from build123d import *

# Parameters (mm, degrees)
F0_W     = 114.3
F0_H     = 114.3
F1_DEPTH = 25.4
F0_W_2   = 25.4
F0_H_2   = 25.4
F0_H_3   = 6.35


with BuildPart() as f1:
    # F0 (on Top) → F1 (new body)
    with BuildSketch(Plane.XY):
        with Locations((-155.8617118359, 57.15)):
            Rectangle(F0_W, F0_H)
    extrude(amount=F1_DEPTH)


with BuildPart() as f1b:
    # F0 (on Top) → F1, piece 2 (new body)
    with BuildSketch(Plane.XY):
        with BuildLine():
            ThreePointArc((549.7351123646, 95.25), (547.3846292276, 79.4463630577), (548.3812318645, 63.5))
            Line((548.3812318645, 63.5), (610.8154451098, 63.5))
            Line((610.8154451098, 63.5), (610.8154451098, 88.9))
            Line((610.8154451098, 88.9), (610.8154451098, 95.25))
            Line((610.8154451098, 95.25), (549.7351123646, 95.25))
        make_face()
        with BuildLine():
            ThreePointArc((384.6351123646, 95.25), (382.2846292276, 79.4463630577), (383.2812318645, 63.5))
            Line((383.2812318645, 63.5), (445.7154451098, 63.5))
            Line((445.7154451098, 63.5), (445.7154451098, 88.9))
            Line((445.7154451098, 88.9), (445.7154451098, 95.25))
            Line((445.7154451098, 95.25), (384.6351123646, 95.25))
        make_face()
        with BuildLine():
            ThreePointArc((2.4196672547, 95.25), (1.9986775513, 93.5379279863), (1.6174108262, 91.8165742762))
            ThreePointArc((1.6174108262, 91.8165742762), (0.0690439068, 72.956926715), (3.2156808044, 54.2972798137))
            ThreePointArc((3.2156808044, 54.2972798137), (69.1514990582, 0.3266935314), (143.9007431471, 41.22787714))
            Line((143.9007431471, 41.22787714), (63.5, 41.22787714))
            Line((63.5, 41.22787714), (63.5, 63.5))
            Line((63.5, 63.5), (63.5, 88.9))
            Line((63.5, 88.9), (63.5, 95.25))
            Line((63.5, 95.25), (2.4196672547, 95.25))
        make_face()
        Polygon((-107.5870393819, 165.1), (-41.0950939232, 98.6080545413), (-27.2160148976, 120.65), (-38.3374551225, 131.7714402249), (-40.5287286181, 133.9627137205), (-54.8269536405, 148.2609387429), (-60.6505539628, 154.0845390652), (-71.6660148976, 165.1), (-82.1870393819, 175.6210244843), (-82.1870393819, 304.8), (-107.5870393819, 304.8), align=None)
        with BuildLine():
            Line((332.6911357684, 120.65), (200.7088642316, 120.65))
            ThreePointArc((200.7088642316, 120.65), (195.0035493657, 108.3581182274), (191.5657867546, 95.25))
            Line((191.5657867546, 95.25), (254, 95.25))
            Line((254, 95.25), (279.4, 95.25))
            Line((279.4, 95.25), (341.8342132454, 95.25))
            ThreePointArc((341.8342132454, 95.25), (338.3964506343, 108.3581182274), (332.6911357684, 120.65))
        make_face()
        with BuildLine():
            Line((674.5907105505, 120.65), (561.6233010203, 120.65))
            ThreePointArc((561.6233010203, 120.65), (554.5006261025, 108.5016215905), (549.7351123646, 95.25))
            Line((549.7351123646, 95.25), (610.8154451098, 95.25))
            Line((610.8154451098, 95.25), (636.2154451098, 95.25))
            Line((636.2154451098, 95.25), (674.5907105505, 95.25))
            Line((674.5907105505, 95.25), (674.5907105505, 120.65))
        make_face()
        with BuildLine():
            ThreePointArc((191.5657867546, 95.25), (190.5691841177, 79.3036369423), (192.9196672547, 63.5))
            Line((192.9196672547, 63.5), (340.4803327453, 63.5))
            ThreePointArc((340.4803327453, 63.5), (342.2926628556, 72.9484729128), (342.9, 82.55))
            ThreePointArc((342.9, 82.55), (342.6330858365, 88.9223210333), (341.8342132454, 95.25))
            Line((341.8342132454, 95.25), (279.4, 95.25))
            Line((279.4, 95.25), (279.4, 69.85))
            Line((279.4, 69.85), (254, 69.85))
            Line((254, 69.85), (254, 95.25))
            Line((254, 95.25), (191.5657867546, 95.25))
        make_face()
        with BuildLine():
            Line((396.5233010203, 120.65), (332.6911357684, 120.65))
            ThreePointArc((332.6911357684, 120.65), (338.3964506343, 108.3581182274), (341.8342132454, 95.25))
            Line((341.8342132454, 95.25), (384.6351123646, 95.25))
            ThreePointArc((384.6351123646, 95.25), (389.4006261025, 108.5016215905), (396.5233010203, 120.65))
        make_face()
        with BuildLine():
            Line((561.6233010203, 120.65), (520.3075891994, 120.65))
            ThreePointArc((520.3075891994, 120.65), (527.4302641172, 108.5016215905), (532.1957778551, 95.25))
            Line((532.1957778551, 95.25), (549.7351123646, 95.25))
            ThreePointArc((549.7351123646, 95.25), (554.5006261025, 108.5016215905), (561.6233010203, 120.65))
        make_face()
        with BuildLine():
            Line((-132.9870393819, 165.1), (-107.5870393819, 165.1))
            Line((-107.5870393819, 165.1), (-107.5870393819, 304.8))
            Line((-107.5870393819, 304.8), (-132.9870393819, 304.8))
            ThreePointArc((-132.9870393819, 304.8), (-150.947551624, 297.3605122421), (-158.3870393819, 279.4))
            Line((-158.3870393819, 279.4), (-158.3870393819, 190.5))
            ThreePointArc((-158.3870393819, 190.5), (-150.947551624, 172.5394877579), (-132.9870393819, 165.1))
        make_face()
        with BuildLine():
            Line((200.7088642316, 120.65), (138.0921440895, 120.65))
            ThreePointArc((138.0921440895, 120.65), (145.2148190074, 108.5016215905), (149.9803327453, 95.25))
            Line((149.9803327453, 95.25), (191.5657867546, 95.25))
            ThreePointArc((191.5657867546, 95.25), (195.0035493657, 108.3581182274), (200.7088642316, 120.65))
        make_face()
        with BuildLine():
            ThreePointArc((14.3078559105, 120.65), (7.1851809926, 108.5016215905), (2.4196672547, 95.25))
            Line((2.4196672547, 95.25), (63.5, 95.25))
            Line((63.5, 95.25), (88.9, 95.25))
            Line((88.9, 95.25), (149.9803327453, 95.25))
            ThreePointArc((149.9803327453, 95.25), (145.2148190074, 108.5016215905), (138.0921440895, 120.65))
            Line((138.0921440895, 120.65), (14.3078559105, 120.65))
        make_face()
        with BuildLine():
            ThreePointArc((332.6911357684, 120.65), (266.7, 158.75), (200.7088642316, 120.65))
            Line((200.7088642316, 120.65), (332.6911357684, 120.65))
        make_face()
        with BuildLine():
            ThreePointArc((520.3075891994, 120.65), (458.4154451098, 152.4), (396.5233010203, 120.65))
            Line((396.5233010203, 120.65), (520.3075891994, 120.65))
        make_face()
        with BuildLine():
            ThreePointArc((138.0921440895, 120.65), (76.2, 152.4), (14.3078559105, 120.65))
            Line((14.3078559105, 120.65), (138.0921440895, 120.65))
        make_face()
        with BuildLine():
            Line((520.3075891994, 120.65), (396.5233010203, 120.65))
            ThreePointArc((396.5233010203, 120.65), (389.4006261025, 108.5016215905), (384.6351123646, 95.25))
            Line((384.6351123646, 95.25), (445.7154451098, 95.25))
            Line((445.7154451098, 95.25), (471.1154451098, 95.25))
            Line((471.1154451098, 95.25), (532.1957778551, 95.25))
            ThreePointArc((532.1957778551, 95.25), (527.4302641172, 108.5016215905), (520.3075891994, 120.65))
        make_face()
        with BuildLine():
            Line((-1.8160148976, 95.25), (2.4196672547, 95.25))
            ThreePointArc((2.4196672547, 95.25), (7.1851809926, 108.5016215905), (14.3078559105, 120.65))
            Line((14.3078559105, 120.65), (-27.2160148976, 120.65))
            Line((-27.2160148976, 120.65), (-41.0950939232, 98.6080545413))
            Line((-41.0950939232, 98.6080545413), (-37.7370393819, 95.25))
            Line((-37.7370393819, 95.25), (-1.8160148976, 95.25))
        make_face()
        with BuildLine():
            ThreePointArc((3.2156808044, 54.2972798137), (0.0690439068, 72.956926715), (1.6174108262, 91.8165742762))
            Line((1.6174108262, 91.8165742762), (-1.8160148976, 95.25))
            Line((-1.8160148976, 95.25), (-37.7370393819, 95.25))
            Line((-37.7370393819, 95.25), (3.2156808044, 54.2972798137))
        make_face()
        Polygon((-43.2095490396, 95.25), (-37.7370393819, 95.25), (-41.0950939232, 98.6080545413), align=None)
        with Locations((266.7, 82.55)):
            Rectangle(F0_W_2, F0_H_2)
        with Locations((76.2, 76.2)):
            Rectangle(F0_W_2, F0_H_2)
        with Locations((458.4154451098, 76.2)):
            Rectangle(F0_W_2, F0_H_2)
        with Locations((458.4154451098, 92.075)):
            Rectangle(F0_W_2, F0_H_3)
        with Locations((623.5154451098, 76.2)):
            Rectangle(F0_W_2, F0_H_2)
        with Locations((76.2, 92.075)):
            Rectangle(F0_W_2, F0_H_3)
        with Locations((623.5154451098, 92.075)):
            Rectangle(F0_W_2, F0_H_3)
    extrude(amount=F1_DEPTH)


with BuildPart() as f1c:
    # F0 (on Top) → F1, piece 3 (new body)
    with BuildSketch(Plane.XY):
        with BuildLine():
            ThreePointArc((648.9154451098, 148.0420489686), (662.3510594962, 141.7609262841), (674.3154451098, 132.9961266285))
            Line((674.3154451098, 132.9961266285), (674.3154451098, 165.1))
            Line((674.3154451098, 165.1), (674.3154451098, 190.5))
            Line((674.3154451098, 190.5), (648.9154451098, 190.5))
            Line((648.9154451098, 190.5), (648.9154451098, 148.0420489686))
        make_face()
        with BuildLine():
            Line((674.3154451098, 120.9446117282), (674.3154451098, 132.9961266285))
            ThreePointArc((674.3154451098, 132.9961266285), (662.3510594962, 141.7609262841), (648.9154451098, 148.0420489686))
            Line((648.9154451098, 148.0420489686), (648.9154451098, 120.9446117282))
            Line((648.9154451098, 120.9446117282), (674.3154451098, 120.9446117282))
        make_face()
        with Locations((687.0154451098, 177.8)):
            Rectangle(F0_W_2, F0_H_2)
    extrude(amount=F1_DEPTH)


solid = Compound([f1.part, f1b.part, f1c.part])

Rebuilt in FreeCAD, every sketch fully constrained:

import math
import FreeCAD as App
import Part
import Sketcher
Q = App.Units.Quantity

doc = App.newDocument("Part")
body = doc.addObject("PartDesign::Body", "Body")

# Sketch on XY plane
sketch1 = body.newObject("Sketcher::SketchObject", "Sketch")
sketch1.AttachmentSupport = (doc.getObject("XY_Plane"), [""])
sketch1.MapMode = "FlatFace"
sketch1.addGeometry(Part.LineSegment(App.Vector(-213.011712, 114.3, 0), App.Vector(-213.011712, 0, 0)), False)
sketch1.addGeometry(Part.LineSegment(App.Vector(-213.011712, 0, 0), App.Vector(-98.711712, 0, 0)), False)
sketch1.addGeometry(Part.LineSegment(App.Vector(-98.711712, 0, 0), App.Vector(-98.711712, 114.3, 0)), False)
sketch1.addGeometry(Part.LineSegment(App.Vector(-98.711712, 114.3, 0), App.Vector(-213.011712, 114.3, 0)), False)
sketch1.addConstraint(Sketcher.Constraint("Coincident", 0, 2, 1, 1))
sketch1.addConstraint(Sketcher.Constraint("Coincident", 1, 2, 2, 1))
sketch1.addConstraint(Sketcher.Constraint("Coincident", 2, 2, 3, 1))
sketch1.addConstraint(Sketcher.Constraint("Coincident", 3, 2, 0, 1))
sketch1.addConstraint(Sketcher.Constraint("Vertical", 0))
sketch1.addConstraint(Sketcher.Constraint("Horizontal", 1))
sketch1.addConstraint(Sketcher.Constraint("Vertical", 2))
sketch1.addConstraint(Sketcher.Constraint("Horizontal", 3))
sketch1.addConstraint(Sketcher.Constraint("PointOnObject", 0, 2, -1))
sketch1.addConstraint(Sketcher.Constraint("Equal", 3, 0))
sketch1.addConstraint(Sketcher.Constraint("DistanceX", 1, 1, 1, 2, Q("4.5 in")))
sketch1.addConstraint(Sketcher.Constraint("DistanceX", 0, 2, -1, 1, 213.011712))
pad1 = body.newObject("PartDesign::Pad", "Pad")
pad1.Profile = sketch1
pad1.Length = Q("1 in")
body2 = doc.addObject("PartDesign::Body", "Body001")

# Sketch on XY plane
sketch2 = body2.newObject("Sketcher::SketchObject", "Sketch001")
sketch2.AttachmentSupport = (doc.getObject("XY_Plane001"), [""])
sketch2.MapMode = "FlatFace"
sketch2.addGeometry(Part.ArcOfCircle(Part.Circle(App.Vector(623.515445, 76.2, 0), App.Vector(0, 0, 1), 76.2), math.radians(165.522488), math.radians(189.594068)), False)
sketch2.addGeometry(Part.LineSegment(App.Vector(548.381232, 63.5, 0), App.Vector(636.215445, 63.5, 0)), False)
sketch2.addGeometry(Part.LineSegment(App.Vector(636.215445, 63.5, 0), App.Vector(636.215445, 95.25, 0)), False)
sketch2.addGeometry(Part.LineSegment(App.Vector(636.215445, 95.25, 0), App.Vector(674.590711, 95.25, 0)), False)
sketch2.addGeometry(Part.LineSegment(App.Vector(674.590711, 95.25, 0), App.Vector(674.590711, 120.65, 0)), False)
sketch2.addGeometry(Part.LineSegment(App.Vector(674.590711, 120.65, 0), App.Vector(520.307589, 120.65, 0)), False)
sketch2.addGeometry(Part.ArcOfCircle(Part.Circle(App.Vector(458.415445, 76.2, 0), App.Vector(0, 0, 1), 76.2), math.radians(35.685335), math.radians(144.314665)), False)
sketch2.addGeometry(Part.LineSegment(App.Vector(396.523301, 120.65, 0), App.Vector(332.691136, 120.65, 0)), False)
sketch2.addGeometry(Part.ArcOfCircle(Part.Circle(App.Vector(266.7, 82.55, 0), App.Vector(0, 0, 1), 76.2), math.radians(30), math.radians(150)), False)
sketch2.addGeometry(Part.LineSegment(App.Vector(200.708864, 120.65, 0), App.Vector(138.092144, 120.65, 0)), False)
sketch2.addGeometry(Part.ArcOfCircle(Part.Circle(App.Vector(76.2, 76.2, 0), App.Vector(0, 0, 1), 76.2), math.radians(35.685335), math.radians(144.314665)), False)
sketch2.addGeometry(Part.LineSegment(App.Vector(14.307856, 120.65, 0), App.Vector(-27.216015, 120.65, 0)), False)
sketch2.addGeometry(Part.LineSegment(App.Vector(-27.216015, 120.65, 0), App.Vector(-82.187039, 175.621024, 0)), False)
sketch2.addGeometry(Part.LineSegment(App.Vector(-82.187039, 175.621024, 0), App.Vector(-82.187039, 304.8, 0)), False)
sketch2.addGeometry(Part.LineSegment(App.Vector(-82.187039, 304.8, 0), App.Vector(-132.987039, 304.8, 0)), False)
sketch2.addGeometry(Part.ArcOfCircle(Part.Circle(App.Vector(-132.987039, 279.4, 0), App.Vector(0, 0, 1), 25.4), math.radians(90), math.radians(180)), False)
sketch2.addGeometry(Part.LineSegment(App.Vector(-158.387039, 279.4, 0), App.Vector(-158.387039, 190.5, 0)), False)
sketch2.addGeometry(Part.ArcOfCircle(Part.Circle(App.Vector(-132.987039, 190.5, 0), App.Vector(0, 0, 1), 25.4), math.radians(180), math.radians(270)), False)
sketch2.addGeometry(Part.LineSegment(App.Vector(-132.987039, 165.1, 0), App.Vector(-107.587039, 165.1, 0)), False)
sketch2.addGeometry(Part.LineSegment(App.Vector(-107.587039, 165.1, 0), App.Vector(-41.095094, 98.608055, 0)), False)
sketch2.addGeometry(Part.LineSegment(App.Vector(-41.095094, 98.608055, 0), App.Vector(-43.209549, 95.25, 0)), False)
sketch2.addGeometry(Part.LineSegment(App.Vector(-43.209549, 95.25, 0), App.Vector(-37.737039, 95.25, 0)), False)
sketch2.addGeometry(Part.LineSegment(App.Vector(-37.737039, 95.25, 0), App.Vector(3.215681, 54.29728, 0)), False)
sketch2.addGeometry(Part.ArcOfCircle(Part.Circle(App.Vector(76.2, 76.2, 0), App.Vector(0, 0, 1), 76.2), math.radians(-163.295409), math.radians(-27.319486)), False)
sketch2.addGeometry(Part.LineSegment(App.Vector(143.900743, 41.227877, 0), App.Vector(63.5, 41.227877, 0)), False)
sketch2.addGeometry(Part.LineSegment(App.Vector(63.5, 41.227877, 0), App.Vector(63.5, 63.5, 0)), False)
sketch2.addGeometry(Part.LineSegment(App.Vector(63.5, 63.5, 0), App.Vector(88.9, 63.5, 0)), False)
sketch2.addGeometry(Part.LineSegment(App.Vector(88.9, 63.5, 0), App.Vector(88.9, 95.25, 0)), False)
sketch2.addGeometry(Part.LineSegment(App.Vector(88.9, 95.25, 0), App.Vector(191.565787, 95.25, 0)), False)
sketch2.addGeometry(Part.ArcOfCircle(Part.Circle(App.Vector(266.7, 82.55, 0), App.Vector(0, 0, 1), 76.2), math.radians(170.405932), math.radians(194.477512)), False)
sketch2.addGeometry(Part.LineSegment(App.Vector(192.919667, 63.5, 0), App.Vector(340.480333, 63.5, 0)), False)
sketch2.addGeometry(Part.ArcOfCircle(Part.Circle(App.Vector(266.7, 82.55, 0), App.Vector(0, 0, 1), 76.2), math.radians(-14.477512), math.radians(0)), False)
sketch2.addGeometry(Part.ArcOfCircle(Part.Circle(App.Vector(266.7, 82.55, 0), App.Vector(0, 0, 1), 76.2), math.radians(0), math.radians(9.594068)), False)
sketch2.addGeometry(Part.LineSegment(App.Vector(341.834213, 95.25, 0), App.Vector(384.635112, 95.25, 0)), False)
sketch2.addGeometry(Part.ArcOfCircle(Part.Circle(App.Vector(458.415445, 76.2, 0), App.Vector(0, 0, 1), 76.2), math.radians(165.522488), math.radians(189.594068)), False)
sketch2.addGeometry(Part.LineSegment(App.Vector(383.281232, 63.5, 0), App.Vector(471.115445, 63.5, 0)), False)
sketch2.addGeometry(Part.LineSegment(App.Vector(471.115445, 63.5, 0), App.Vector(471.115445, 95.25, 0)), False)
sketch2.addGeometry(Part.LineSegment(App.Vector(471.115445, 95.25, 0), App.Vector(549.735112, 95.25, 0)), False)
sketch2.addGeometry(Part.LineSegment(App.Vector(-1.816015, 95.25, 0), App.Vector(2.419667, 95.25, 0)), False)
sketch2.addGeometry(Part.ArcOfCircle(Part.Circle(App.Vector(76.2, 76.2, 0), App.Vector(0, 0, 1), 76.2), math.radians(165.522488), math.radians(168.173901)), False)
sketch2.addGeometry(Part.LineSegment(App.Vector(1.617411, 91.816574, 0), App.Vector(-1.816015, 95.25, 0)), False)
sketch2.addConstraint(Sketcher.Constraint("Coincident", 0, 2, 1, 1))
sketch2.addConstraint(Sketcher.Constraint("Coincident", 1, 2, 2, 1))
sketch2.addConstraint(Sketcher.Constraint("Coincident", 2, 2, 3, 1))
sketch2.addConstraint(Sketcher.Constraint("Coincident", 3, 2, 4, 1))
sketch2.addConstraint(Sketcher.Constraint("Coincident", 4, 2, 5, 1))
sketch2.addConstraint(Sketcher.Constraint("Coincident", 5, 2, 6, 1))
sketch2.addConstraint(Sketcher.Constraint("Coincident", 6, 2, 7, 1))
sketch2.addConstraint(Sketcher.Constraint("Coincident", 7, 2, 8, 1))
sketch2.addConstraint(Sketcher.Constraint("Coincident", 8, 2, 9, 1))
sketch2.addConstraint(Sketcher.Constraint("Coincident", 9, 2, 10, 1))
sketch2.addConstraint(Sketcher.Constraint("Coincident", 10, 2, 11, 1))
sketch2.addConstraint(Sketcher.Constraint("Coincident", 11, 2, 12, 1))
sketch2.addConstraint(Sketcher.Constraint("Coincident", 12, 2, 13, 1))
sketch2.addConstraint(Sketcher.Constraint("Coincident", 13, 2, 14, 1))
sketch2.addConstraint(Sketcher.Constraint("Tangent", 14, 2, 15, 1))
sketch2.addConstraint(Sketcher.Constraint("Tangent", 15, 2, 16, 1))
sketch2.addConstraint(Sketcher.Constraint("Tangent", 16, 2, 17, 1))
sketch2.addConstraint(Sketcher.Constraint("Tangent", 17, 2, 18, 1))
sketch2.addConstraint(Sketcher.Constraint("Coincident", 18, 2, 19, 1))
sketch2.addConstraint(Sketcher.Constraint("Coincident", 19, 2, 20, 1))
sketch2.addConstraint(Sketcher.Constraint("Coincident", 20, 2, 21, 1))
sketch2.addConstraint(Sketcher.Constraint("Coincident", 21, 2, 22, 1))
sketch2.addConstraint(Sketcher.Constraint("Coincident", 22, 2, 23, 1))
sketch2.addConstraint(Sketcher.Constraint("Coincident", 23, 2, 24, 1))
sketch2.addConstraint(Sketcher.Constraint("Coincident", 24, 2, 25, 1))
sketch2.addConstraint(Sketcher.Constraint("Coincident", 25, 2, 26, 1))
sketch2.addConstraint(Sketcher.Constraint("Coincident", 26, 2, 27, 1))
sketch2.addConstraint(Sketcher.Constraint("Coincident", 27, 2, 28, 1))
sketch2.addConstraint(Sketcher.Constraint("Coincident", 28, 2, 29, 1))
sketch2.addConstraint(Sketcher.Constraint("Coincident", 29, 2, 30, 1))
sketch2.addConstraint(Sketcher.Constraint("Coincident", 30, 2, 31, 1))
sketch2.addConstraint(Sketcher.Constraint("Tangent", 31, 2, 32, 1))
sketch2.addConstraint(Sketcher.Constraint("Coincident", 32, 2, 33, 1))
sketch2.addConstraint(Sketcher.Constraint("Coincident", 33, 2, 34, 1))
sketch2.addConstraint(Sketcher.Constraint("Coincident", 34, 2, 35, 1))
sketch2.addConstraint(Sketcher.Constraint("Coincident", 35, 2, 36, 1))
sketch2.addConstraint(Sketcher.Constraint("Coincident", 36, 2, 37, 1))
sketch2.addConstraint(Sketcher.Constraint("Coincident", 37, 2, 0, 1))
sketch2.addConstraint(Sketcher.Constraint("Coincident", 38, 2, 39, 1))
sketch2.addConstraint(Sketcher.Constraint("Coincident", 39, 2, 40, 1))
sketch2.addConstraint(Sketcher.Constraint("Coincident", 40, 2, 38, 1))
sketch2.addConstraint(Sketcher.Constraint("Horizontal", 1))
sketch2.addConstraint(Sketcher.Constraint("Vertical", 2))
sketch2.addConstraint(Sketcher.Constraint("Horizontal", 3))
sketch2.addConstraint(Sketcher.Constraint("Vertical", 4))
sketch2.addConstraint(Sketcher.Constraint("Horizontal", 5))
sketch2.addConstraint(Sketcher.Constraint("Horizontal", 7))
sketch2.addConstraint(Sketcher.Constraint("Horizontal", 9))
sketch2.addConstraint(Sketcher.Constraint("Horizontal", 11))
sketch2.addConstraint(Sketcher.Constraint("Vertical", 13))
sketch2.addConstraint(Sketcher.Constraint("Horizontal", 14))
sketch2.addConstraint(Sketcher.Constraint("Vertical", 16))
sketch2.addConstraint(Sketcher.Constraint("Horizontal", 18))
sketch2.addConstraint(Sketcher.Constraint("Horizontal", 21))
sketch2.addConstraint(Sketcher.Constraint("Horizontal", 24))
sketch2.addConstraint(Sketcher.Constraint("Vertical", 25))
sketch2.addConstraint(Sketcher.Constraint("Horizontal", 26))
sketch2.addConstraint(Sketcher.Constraint("Vertical", 27))
sketch2.addConstraint(Sketcher.Constraint("Horizontal", 28))
sketch2.addConstraint(Sketcher.Constraint("Horizontal", 30))
sketch2.addConstraint(Sketcher.Constraint("Horizontal", 33))
sketch2.addConstraint(Sketcher.Constraint("Horizontal", 35))
sketch2.addConstraint(Sketcher.Constraint("Vertical", 36))
sketch2.addConstraint(Sketcher.Constraint("Horizontal", 37))
sketch2.addConstraint(Sketcher.Constraint("Horizontal", 38))
sketch2.addConstraint(Sketcher.Constraint("Coincident", 23, 3, 10, 3))
sketch2.addConstraint(Sketcher.Constraint("Coincident", 29, 3, 8, 3))
sketch2.addConstraint(Sketcher.Constraint("Coincident", 31, 3, 8, 3))
sketch2.addConstraint(Sketcher.Constraint("Coincident", 34, 3, 6, 3))
sketch2.addConstraint(Sketcher.Constraint("Coincident", 39, 3, 10, 3))
sketch2.addConstraint(Sketcher.Constraint("Equal", 0, 6))
sketch2.addConstraint(Sketcher.Constraint("Equal", 6, 8))
sketch2.addConstraint(Sketcher.Constraint("Equal", 8, 10))
sketch2.addConstraint(Sketcher.Constraint("Equal", 15, 17))
sketch2.addConstraint(Sketcher.Constraint("Equal", 10, 23))
sketch2.addConstraint(Sketcher.Constraint("Equal", 23, 29))
sketch2.addConstraint(Sketcher.Constraint("Equal", 29, 31))
sketch2.addConstraint(Sketcher.Constraint("Equal", 31, 32))
sketch2.addConstraint(Sketcher.Constraint("Equal", 32, 34))
sketch2.addConstraint(Sketcher.Constraint("Equal", 34, 39))
sketch2.addConstraint(Sketcher.Constraint("Parallel", 12, 19))
sketch2.addConstraint(Sketcher.Constraint("Parallel", 19, 22))
sketch2.addConstraint(Sketcher.Constraint("Parallel", 22, 40))
sketch2.addConstraint(Sketcher.Constraint("Horizontal", 0, 3, 6, 3))
sketch2.addConstraint(Sketcher.Constraint("Horizontal", 6, 3, 10, 3))
sketch2.addConstraint(Sketcher.Constraint("Horizontal", 5, 2, 6, 2))
sketch2.addConstraint(Sketcher.Constraint("Horizontal", 7, 2, 8, 2))
sketch2.addConstraint(Sketcher.Constraint("Horizontal", 9, 2, 10, 2))
sketch2.addConstraint(Sketcher.Constraint("Horizontal", 3, 2, 20, 2))
sketch2.addConstraint(Sketcher.Constraint("Horizontal", 1, 2, 25, 2))
sketch2.addConstraint(Sketcher.Constraint("Horizontal", 21, 2, 27, 2))
sketch2.addConstraint(Sketcher.Constraint("Horizontal", 26, 2, 29, 2))
sketch2.addConstraint(Sketcher.Constraint("Horizontal", 32, 3, 31, 2))
sketch2.addConstraint(Sketcher.Constraint("Horizontal", 28, 2, 32, 2))
sketch2.addConstraint(Sketcher.Constraint("Horizontal", 30, 2, 34, 2))
sketch2.addConstraint(Sketcher.Constraint("Horizontal", 33, 2, 36, 2))
sketch2.addConstraint(Sketcher.Constraint("Horizontal", 37, 2, 38, 2))
sketch2.addConstraint(Sketcher.Constraint("Equal", 18, 26))
sketch2.addConstraint(Sketcher.Constraint("Equal", 1, 35))
sketch2.addConstraint(Sketcher.Constraint("Equal", 26, 4))
sketch2.addConstraint(Sketcher.Constraint("Radius", 0, Q("3 in")))
sketch2.addConstraint(Sketcher.Constraint("Radius", 15, Q("1 in")))
sketch2.addConstraint(Sketcher.Constraint("DistanceX", 14, 2, 14, 1, Q("2 in")))
sketch2.addConstraint(Sketcher.Constraint("DistanceX", 18, 1, 18, 2, Q("1 in")))
sketch2.addConstraint(Sketcher.Constraint("DistanceY", 16, 2, 16, 1, Q("3.5 in")))
sketch2.addConstraint(Sketcher.Constraint("DistanceY", -1, 1, 0, 3, Q("3 in")))
sketch2.addConstraint(Sketcher.Constraint("DistanceX", -1, 1, 10, 3, Q("3 in")))
sketch2.addConstraint(Sketcher.Constraint("DistanceY", -1, 1, 15, 3, Q("11 in")))
sketch2.addConstraint(Sketcher.Constraint("Angle", 12, Q("135 deg")))
sketch2.addConstraint(Sketcher.Constraint("DistanceX", 6, 3, 1, 2, Q("7 in")))
sketch2.addConstraint(Sketcher.Constraint("DistanceX", 11, 2, 40, 2, Q("1 in")))
sketch2.addConstraint(Sketcher.Constraint("DistanceY", 2, 1, 2, 2, Q("1.25 in")))
sketch2.addConstraint(Sketcher.Constraint("DistanceX", -1, 1, 8, 3, Q("10.5 in")))
sketch2.addConstraint(Sketcher.Constraint("DistanceY", -1, 1, 1, 2, Q("2.5 in")))
sketch2.addConstraint(Sketcher.Constraint("DistanceX", -1, 1, 24, 2, Q("2.5 in")))
sketch2.addConstraint(Sketcher.Constraint("DistanceX", 6, 3, 0, 3, Q("6.5 in")))
sketch2.addConstraint(Sketcher.Constraint("DistanceY", 32, 3, 6, 2, Q("1.5 in")))
sketch2.addConstraint(Sketcher.Constraint("DistanceX", 12, 2, 21, 2, Q("1.75 in")))
sketch2.addConstraint(Sketcher.Constraint("DistanceX", 33, 1, 33, 2, 42.800899))
sketch2.addConstraint(Sketcher.Constraint("DistanceX", 22, 2, 10, 2, Q("0.4366998 in")))
sketch2.addConstraint(Sketcher.Constraint("DistanceX", 5, 2, 5, 1, 154.283121))
sketch2.addConstraint(Sketcher.Constraint("DistanceX", 11, 2, 11, 1, 41.523871))
sketch2.addConstraint(Sketcher.Constraint("DistanceX", 21, 1, 21, 2, 5.47251))
sketch2.addConstraint(Sketcher.Constraint("DistanceX", 9, 2, 23, 2, 5.808599))
sketch2.addConstraint(Sketcher.Constraint("Distance", 19, 94.033811))
pad2 = body2.newObject("PartDesign::Pad", "Pad001")
pad2.Profile = sketch2
pad2.Length = Q("1 in")
body3 = doc.addObject("PartDesign::Body", "Body002")

# Sketch on XY plane
sketch3 = body3.newObject("Sketcher::SketchObject", "Sketch002")
sketch3.AttachmentSupport = (doc.getObject("XY_Plane002"), [""])
sketch3.MapMode = "FlatFace"
sketch3.addGeometry(Part.LineSegment(App.Vector(648.915445, 190.5, 0), App.Vector(648.915445, 120.944612, 0)), False)
sketch3.addGeometry(Part.LineSegment(App.Vector(648.915445, 120.944612, 0), App.Vector(674.315445, 120.944612, 0)), False)
sketch3.addGeometry(Part.LineSegment(App.Vector(674.315445, 120.944612, 0), App.Vector(674.315445, 165.1, 0)), False)
sketch3.addGeometry(Part.LineSegment(App.Vector(674.315445, 165.1, 0), App.Vector(699.715445, 165.1, 0)), False)
sketch3.addGeometry(Part.LineSegment(App.Vector(699.715445, 165.1, 0), App.Vector(699.715445, 190.5, 0)), False)
sketch3.addGeometry(Part.LineSegment(App.Vector(699.715445, 190.5, 0), App.Vector(648.915445, 190.5, 0)), False)
sketch3.addConstraint(Sketcher.Constraint("Coincident", 0, 2, 1, 1))
sketch3.addConstraint(Sketcher.Constraint("Coincident", 1, 2, 2, 1))
sketch3.addConstraint(Sketcher.Constraint("Coincident", 2, 2, 3, 1))
sketch3.addConstraint(Sketcher.Constraint("Coincident", 3, 2, 4, 1))
sketch3.addConstraint(Sketcher.Constraint("Coincident", 4, 2, 5, 1))
sketch3.addConstraint(Sketcher.Constraint("Coincident", 5, 2, 0, 1))
sketch3.addConstraint(Sketcher.Constraint("Vertical", 0))
sketch3.addConstraint(Sketcher.Constraint("Horizontal", 1))
sketch3.addConstraint(Sketcher.Constraint("Vertical", 2))
sketch3.addConstraint(Sketcher.Constraint("Horizontal", 3))
sketch3.addConstraint(Sketcher.Constraint("Vertical", 4))
sketch3.addConstraint(Sketcher.Constraint("Horizontal", 5))
sketch3.addConstraint(Sketcher.Constraint("Equal", 1, 3))
sketch3.addConstraint(Sketcher.Constraint("Equal", 3, 4))
sketch3.addConstraint(Sketcher.Constraint("DistanceX", 1, 1, 1, 2, Q("1 in")))
sketch3.addConstraint(Sketcher.Constraint("DistanceY", -1, 1, 2, 2, Q("6.5 in")))
sketch3.addConstraint(Sketcher.Constraint("DistanceY", 0, 2, 0, 1, 69.555388))
sketch3.addConstraint(Sketcher.Constraint("DistanceX", -1, 1, 0, 2, 648.915445))
pad3 = body3.newObject("PartDesign::Pad", "Pad002")
pad3.Profile = sketch3
pad3.Length = Q("1 in")

doc.recompute()
